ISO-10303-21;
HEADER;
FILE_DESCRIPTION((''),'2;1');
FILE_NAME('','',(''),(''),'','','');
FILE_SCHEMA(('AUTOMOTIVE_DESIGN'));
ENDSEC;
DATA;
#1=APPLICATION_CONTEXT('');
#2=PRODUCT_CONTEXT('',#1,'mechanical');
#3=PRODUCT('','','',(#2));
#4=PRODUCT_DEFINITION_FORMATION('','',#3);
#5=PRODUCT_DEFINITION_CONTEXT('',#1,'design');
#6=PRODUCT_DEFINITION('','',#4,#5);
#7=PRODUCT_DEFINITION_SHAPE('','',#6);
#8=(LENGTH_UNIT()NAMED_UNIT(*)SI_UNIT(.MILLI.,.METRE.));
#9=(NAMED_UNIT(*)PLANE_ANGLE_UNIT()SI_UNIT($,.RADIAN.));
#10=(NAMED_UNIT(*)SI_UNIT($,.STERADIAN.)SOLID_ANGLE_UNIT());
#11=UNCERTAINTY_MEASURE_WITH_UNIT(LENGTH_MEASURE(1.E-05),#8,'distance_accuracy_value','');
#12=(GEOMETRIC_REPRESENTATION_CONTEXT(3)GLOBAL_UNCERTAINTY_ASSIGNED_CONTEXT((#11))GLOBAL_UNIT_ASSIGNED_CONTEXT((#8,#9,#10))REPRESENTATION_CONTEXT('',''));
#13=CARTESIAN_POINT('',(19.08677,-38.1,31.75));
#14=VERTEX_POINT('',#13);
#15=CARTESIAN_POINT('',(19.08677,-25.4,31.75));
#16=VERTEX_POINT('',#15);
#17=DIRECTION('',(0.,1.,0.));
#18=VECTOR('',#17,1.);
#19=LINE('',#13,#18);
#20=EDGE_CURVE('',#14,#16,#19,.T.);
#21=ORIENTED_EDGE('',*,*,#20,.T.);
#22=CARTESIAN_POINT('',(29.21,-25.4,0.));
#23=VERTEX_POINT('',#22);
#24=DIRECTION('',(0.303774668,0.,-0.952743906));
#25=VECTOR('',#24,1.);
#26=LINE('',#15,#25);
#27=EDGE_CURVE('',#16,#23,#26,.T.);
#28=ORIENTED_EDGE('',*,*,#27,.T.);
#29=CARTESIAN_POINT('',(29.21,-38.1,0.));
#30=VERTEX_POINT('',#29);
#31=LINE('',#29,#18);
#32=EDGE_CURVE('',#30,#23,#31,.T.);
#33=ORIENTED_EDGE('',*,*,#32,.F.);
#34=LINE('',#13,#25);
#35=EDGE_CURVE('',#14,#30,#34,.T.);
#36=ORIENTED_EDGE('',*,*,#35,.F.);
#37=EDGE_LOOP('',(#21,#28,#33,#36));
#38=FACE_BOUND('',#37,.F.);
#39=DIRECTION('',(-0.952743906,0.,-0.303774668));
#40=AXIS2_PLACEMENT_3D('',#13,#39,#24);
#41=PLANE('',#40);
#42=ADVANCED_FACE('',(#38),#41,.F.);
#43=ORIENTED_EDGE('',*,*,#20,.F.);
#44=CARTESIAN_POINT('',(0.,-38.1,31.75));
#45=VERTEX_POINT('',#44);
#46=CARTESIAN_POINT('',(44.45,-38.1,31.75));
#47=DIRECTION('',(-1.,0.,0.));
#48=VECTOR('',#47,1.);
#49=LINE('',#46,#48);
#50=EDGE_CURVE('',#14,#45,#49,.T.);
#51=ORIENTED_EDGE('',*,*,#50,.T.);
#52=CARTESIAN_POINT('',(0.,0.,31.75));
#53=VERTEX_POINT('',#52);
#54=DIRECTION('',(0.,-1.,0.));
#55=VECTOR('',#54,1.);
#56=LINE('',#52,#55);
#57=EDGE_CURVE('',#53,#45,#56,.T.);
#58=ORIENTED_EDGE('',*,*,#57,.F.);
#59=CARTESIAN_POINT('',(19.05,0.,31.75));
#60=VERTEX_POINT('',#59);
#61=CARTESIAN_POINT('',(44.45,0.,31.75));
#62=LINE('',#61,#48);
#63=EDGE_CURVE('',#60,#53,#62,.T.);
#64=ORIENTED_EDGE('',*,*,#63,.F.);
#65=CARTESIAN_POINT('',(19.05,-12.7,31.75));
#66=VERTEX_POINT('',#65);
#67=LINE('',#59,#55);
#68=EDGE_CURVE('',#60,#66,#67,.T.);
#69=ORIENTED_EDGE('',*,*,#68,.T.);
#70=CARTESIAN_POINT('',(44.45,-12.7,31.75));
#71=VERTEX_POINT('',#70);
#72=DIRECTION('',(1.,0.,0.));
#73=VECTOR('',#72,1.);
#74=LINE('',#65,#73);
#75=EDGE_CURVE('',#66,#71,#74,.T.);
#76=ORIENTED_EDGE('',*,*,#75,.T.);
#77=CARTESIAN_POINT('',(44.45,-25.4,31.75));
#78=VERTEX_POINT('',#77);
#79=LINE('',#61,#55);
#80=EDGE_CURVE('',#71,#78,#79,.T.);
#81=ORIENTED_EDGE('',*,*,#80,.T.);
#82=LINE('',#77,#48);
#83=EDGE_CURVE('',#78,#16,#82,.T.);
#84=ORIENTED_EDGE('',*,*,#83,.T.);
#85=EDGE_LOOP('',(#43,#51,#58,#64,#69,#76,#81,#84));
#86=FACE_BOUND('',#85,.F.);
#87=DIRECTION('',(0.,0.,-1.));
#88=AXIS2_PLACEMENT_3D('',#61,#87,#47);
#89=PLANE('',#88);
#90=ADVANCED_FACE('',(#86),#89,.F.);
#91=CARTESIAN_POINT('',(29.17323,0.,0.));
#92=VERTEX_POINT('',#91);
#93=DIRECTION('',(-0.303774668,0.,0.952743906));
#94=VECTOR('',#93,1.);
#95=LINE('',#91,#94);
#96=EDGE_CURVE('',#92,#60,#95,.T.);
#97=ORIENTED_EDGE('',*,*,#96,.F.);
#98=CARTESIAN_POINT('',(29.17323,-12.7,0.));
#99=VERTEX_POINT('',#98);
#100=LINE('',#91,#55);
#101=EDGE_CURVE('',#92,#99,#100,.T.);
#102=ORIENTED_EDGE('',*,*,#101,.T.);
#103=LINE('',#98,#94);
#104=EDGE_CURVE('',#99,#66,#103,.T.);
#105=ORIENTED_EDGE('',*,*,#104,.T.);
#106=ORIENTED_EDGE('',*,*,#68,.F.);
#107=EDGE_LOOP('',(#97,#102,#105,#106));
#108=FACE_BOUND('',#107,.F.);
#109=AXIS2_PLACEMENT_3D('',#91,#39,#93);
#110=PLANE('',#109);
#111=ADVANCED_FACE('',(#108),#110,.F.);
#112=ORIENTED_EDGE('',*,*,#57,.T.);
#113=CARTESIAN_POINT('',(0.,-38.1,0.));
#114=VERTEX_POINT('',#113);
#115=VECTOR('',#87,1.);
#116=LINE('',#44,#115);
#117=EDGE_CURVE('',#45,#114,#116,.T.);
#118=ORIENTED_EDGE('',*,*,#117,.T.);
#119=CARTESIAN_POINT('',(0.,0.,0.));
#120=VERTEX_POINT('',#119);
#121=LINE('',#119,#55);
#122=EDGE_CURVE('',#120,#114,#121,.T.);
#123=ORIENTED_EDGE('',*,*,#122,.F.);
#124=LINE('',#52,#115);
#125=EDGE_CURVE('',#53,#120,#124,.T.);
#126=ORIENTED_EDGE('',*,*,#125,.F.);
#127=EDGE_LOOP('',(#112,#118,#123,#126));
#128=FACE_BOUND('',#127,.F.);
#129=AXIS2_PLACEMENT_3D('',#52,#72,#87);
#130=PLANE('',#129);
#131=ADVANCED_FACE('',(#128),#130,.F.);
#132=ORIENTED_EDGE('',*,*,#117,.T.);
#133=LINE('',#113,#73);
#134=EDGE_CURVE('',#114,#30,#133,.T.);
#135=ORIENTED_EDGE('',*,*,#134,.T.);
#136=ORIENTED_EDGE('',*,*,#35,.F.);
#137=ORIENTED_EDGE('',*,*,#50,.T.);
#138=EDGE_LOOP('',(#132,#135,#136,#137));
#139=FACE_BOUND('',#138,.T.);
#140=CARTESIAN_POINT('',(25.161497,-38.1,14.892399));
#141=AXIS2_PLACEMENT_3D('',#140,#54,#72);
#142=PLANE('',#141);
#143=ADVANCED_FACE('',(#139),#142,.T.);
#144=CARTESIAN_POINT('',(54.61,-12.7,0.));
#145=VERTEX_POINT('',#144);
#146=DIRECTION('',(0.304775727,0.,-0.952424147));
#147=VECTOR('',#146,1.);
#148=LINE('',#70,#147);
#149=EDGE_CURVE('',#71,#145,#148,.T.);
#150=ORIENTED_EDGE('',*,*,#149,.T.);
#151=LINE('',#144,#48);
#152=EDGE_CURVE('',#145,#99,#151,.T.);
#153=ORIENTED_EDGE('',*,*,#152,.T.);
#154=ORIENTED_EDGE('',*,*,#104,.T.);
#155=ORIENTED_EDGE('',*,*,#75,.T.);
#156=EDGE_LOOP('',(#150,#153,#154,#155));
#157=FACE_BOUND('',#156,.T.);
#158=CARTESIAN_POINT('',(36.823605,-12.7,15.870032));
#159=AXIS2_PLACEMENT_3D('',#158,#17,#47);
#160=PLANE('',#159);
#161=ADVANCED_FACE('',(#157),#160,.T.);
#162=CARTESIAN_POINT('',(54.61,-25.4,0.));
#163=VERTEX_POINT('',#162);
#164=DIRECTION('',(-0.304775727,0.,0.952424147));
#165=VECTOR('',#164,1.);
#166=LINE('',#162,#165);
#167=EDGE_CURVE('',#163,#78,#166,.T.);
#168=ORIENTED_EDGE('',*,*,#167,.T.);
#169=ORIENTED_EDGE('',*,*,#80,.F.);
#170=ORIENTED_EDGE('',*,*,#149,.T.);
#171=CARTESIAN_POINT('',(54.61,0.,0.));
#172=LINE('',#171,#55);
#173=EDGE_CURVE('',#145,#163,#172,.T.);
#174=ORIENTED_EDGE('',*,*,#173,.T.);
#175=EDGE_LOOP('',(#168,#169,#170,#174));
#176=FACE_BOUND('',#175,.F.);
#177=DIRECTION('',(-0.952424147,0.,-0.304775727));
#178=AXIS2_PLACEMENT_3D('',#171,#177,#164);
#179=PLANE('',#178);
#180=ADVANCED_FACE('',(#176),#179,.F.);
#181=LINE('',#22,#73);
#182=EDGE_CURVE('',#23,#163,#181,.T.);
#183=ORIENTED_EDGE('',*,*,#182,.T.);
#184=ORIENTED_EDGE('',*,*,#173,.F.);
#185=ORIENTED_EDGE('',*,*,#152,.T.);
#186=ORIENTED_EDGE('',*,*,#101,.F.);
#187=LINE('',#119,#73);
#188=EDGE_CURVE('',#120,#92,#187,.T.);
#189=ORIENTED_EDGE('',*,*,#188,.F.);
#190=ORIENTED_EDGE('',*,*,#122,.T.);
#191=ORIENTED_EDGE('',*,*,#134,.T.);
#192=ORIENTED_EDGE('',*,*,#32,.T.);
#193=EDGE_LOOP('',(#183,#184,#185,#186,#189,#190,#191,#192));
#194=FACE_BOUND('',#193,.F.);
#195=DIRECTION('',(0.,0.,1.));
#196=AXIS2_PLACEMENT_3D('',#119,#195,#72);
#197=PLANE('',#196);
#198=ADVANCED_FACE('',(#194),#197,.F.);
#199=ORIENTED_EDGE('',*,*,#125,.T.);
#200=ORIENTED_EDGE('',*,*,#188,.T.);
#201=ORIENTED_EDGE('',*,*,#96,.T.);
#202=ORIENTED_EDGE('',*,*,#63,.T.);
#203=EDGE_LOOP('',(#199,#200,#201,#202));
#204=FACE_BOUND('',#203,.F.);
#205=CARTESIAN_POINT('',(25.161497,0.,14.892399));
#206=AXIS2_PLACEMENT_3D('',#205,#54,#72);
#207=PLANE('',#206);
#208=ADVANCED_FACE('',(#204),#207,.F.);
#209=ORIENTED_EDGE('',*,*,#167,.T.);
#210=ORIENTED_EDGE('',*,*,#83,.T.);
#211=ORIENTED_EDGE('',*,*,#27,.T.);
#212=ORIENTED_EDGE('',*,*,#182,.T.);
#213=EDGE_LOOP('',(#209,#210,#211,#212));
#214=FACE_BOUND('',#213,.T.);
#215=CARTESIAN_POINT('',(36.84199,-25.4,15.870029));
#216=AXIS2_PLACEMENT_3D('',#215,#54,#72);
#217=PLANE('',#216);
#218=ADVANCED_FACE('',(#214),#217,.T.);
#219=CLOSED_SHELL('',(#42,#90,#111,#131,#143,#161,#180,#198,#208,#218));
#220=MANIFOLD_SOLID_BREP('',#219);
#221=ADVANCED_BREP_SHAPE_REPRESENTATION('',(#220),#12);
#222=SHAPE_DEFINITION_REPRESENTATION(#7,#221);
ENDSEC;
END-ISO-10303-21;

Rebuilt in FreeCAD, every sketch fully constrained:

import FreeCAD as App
import Part
import Sketcher
from FreeCAD import Vector
Q = App.Units.Quantity


def add_polygon(sketch, points):
    """Adds a closed chain of lines whose ends are joined by coincident constraints."""
    first, n = sketch.GeometryCount, len(points)
    for a, b in zip(points, points[1:] + points[:1]):
        sketch.addGeometry(Part.LineSegment(App.Vector(*a, 0), App.Vector(*b, 0)), False)
    for i in range(n):
        sketch.addConstraint(Sketcher.Constraint("Coincident", first + i, 2, first + (i + 1) % n, 1))

doc = App.newDocument("Part")
body = doc.addObject("PartDesign::Body", "Body")

# Sketch on XZ plane
sketch1 = body.newObject("Sketcher::SketchObject", "Sketch")
sketch1.AttachmentSupport = (doc.getObject("XZ_Plane"), [""])
sketch1.MapMode = "FlatFace"
add_polygon(sketch1, [(0, 32), (0, 0), (55, 0), (44, 32)])  # lines 0-3
sketch1.addConstraint([
    Sketcher.Constraint("Vertical", 0),
    Sketcher.Constraint("Horizontal", 1),
    Sketcher.Constraint("Horizontal", 3),
    Sketcher.Constraint("Coincident", 0, 2, -1, 1),
    Sketcher.Constraint("DistanceX", 1, 1, 1, 2, Q("2.15 in")),
    Sketcher.Constraint("DistanceX", 3, 2, 3, 1, Q("1.75 in")),
    Sketcher.Constraint("DistanceY", 0, 2, 0, 1, Q("1.25 in")),
])
pad1 = body.newObject("PartDesign::Pad", "Pad")
pad1.Profile = sketch1
pad1.Length = Q("1.5 in")

# Sketch on XZ plane
sketch2 = body.newObject("Sketcher::SketchObject", "Sketch001")
sketch2.AttachmentSupport = (doc.getObject("XZ_Plane"), [""])
sketch2.MapMode = "FlatFace"
add_polygon(sketch2, [(-44, 32), (-20, 32), (-28, 0), (-55, 0)])  # lines 0-3
add_polygon(sketch2, [(44, 32), (55, 0), (29, 0), (19, 32)])  # lines 4-7
sketch2.addConstraint([
    Sketcher.Constraint("Horizontal", 0),
    Sketcher.Constraint("Horizontal", 2),
    Sketcher.Constraint("Horizontal", 5),
    Sketcher.Constraint("Horizontal", 7),
    Sketcher.Constraint("PointOnObject", 4, 2, -1),
    Sketcher.Constraint("DistanceX", 7, 1, 7, 2, Q("1 in")),
    Sketcher.Constraint("DistanceX", 6, 2, 4, 2, Q("1.4 in")),
    Sketcher.Constraint("DistanceX", -1, 1, 4, 2, Q("2.15 in")),
    Sketcher.Constraint("DistanceY", -1, 1, 6, 2, Q("1.25 in")),
    Sketcher.Constraint("Distance", 6, Q("1.312 in")),
    Sketcher.Constraint("DistanceY", -1, 1, 0, 2, Q("1.2470002 in")),
    Sketcher.Constraint("DistanceX", 2, 2, 2, 1, Q("26.424742 mm")),
    Sketcher.Constraint("DistanceX", 2, 2, 3, 2, Q("10.259301 mm")),
    Sketcher.Constraint("Distance", 3, Q("33.345282 mm")),
    Sketcher.Constraint("DistanceX", 0, 1, 0, 2, Q("24.714853 mm")),
    Sketcher.Constraint("DistanceX", 0, 2, -1, 1, Q("19.705663 mm")),
])
pocket1 = body.newObject("PartDesign::Pocket", "Pocket")
pocket1.Profile = sketch2
pocket1.Length = Q("0.5 in")
pocket1.Reversed = True

# Sketch on XZ plane
sketch3 = body.newObject("Sketcher::SketchObject", "Sketch002")
sketch3.AttachmentSupport = (doc.getObject("XZ_Plane"), [""])
sketch3.MapMode = "FlatFace"
add_polygon(sketch3, [(-44, 32), (-20, 32), (-28, 0), (-55, 0)])  # lines 0-3
add_polygon(sketch3, [(44, 32), (55, 0), (29, 0), (19, 32)])  # lines 4-7
sketch3.addConstraint([
    Sketcher.Constraint("Horizontal", 0),
    Sketcher.Constraint("Horizontal", 2),
    Sketcher.Constraint("Horizontal", 5),
    Sketcher.Constraint("Horizontal", 7),
    Sketcher.Constraint("PointOnObject", 4, 2, -1),
    Sketcher.Constraint("DistanceX", 7, 1, 7, 2, Q("1 in")),
    Sketcher.Constraint("DistanceX", 6, 2, 4, 2, Q("1.4 in")),
    Sketcher.Constraint("DistanceX", -1, 1, 4, 2, Q("2.15 in")),
    Sketcher.Constraint("DistanceY", -1, 1, 6, 2, Q("1.25 in")),
    Sketcher.Constraint("Distance", 6, Q("1.312 in")),
    Sketcher.Constraint("DistanceY", -1, 1, 0, 2, Q("1.2470002 in")),
    Sketcher.Constraint("DistanceX", 2, 2, 2, 1, Q("26.424742 mm")),
    Sketcher.Constraint("DistanceX", 2, 2, 3, 2, Q("10.259301 mm")),
    Sketcher.Constraint("Distance", 3, Q("33.345282 mm")),
    Sketcher.Constraint("DistanceX", 0, 1, 0, 2, Q("24.714853 mm")),
    Sketcher.Constraint("DistanceX", 0, 2, -1, 1, Q("19.705663 mm")),
])
pocket2 = body.newObject("PartDesign::Pocket", "Pocket001")
pocket2.Profile = sketch3
pocket2.Length = Q("0.5 in")
pocket2.Reversed = True

# Sketch on XZ plane
sketch4 = body.newObject("Sketcher::SketchObject", "Sketch003")
sketch4.AttachmentSupport = (doc.getObject("XZ_Plane"), [""])
sketch4.MapMode = "FlatFace"
sketch4.AttachmentOffset = App.Placement(Vector(0, 0, 1.5 * 25.4), App.Rotation())
add_polygon(sketch4, [(29, 0), (55, 0), (44, 32), (19, 32)])  # lines 0-3
sketch4.addConstraint([
    Sketcher.Constraint("Horizontal", 0),
    Sketcher.Constraint("Horizontal", 2),
    Sketcher.Constraint("PointOnObject", 0, 2, -1),
    Sketcher.Constraint("DistanceX", 0, 1, 0, 2, Q("1 in")),
    Sketcher.Constraint("DistanceX", 1, 2, 0, 2, Q("0.4 in")),
    Sketcher.Constraint("DistanceX", -1, 1, 0, 2, Q("2.15 in")),
    Sketcher.Constraint("DistanceY", -1, 1, 1, 2, Q("1.25 in")),
    Sketcher.Constraint("Distance", 3, Q("1.312 in")),
])
pocket3 = body.newObject("PartDesign::Pocket", "Pocket002")
pocket3.Profile = sketch4
pocket3.Length = Q("0.5 in")

doc.recompute()
